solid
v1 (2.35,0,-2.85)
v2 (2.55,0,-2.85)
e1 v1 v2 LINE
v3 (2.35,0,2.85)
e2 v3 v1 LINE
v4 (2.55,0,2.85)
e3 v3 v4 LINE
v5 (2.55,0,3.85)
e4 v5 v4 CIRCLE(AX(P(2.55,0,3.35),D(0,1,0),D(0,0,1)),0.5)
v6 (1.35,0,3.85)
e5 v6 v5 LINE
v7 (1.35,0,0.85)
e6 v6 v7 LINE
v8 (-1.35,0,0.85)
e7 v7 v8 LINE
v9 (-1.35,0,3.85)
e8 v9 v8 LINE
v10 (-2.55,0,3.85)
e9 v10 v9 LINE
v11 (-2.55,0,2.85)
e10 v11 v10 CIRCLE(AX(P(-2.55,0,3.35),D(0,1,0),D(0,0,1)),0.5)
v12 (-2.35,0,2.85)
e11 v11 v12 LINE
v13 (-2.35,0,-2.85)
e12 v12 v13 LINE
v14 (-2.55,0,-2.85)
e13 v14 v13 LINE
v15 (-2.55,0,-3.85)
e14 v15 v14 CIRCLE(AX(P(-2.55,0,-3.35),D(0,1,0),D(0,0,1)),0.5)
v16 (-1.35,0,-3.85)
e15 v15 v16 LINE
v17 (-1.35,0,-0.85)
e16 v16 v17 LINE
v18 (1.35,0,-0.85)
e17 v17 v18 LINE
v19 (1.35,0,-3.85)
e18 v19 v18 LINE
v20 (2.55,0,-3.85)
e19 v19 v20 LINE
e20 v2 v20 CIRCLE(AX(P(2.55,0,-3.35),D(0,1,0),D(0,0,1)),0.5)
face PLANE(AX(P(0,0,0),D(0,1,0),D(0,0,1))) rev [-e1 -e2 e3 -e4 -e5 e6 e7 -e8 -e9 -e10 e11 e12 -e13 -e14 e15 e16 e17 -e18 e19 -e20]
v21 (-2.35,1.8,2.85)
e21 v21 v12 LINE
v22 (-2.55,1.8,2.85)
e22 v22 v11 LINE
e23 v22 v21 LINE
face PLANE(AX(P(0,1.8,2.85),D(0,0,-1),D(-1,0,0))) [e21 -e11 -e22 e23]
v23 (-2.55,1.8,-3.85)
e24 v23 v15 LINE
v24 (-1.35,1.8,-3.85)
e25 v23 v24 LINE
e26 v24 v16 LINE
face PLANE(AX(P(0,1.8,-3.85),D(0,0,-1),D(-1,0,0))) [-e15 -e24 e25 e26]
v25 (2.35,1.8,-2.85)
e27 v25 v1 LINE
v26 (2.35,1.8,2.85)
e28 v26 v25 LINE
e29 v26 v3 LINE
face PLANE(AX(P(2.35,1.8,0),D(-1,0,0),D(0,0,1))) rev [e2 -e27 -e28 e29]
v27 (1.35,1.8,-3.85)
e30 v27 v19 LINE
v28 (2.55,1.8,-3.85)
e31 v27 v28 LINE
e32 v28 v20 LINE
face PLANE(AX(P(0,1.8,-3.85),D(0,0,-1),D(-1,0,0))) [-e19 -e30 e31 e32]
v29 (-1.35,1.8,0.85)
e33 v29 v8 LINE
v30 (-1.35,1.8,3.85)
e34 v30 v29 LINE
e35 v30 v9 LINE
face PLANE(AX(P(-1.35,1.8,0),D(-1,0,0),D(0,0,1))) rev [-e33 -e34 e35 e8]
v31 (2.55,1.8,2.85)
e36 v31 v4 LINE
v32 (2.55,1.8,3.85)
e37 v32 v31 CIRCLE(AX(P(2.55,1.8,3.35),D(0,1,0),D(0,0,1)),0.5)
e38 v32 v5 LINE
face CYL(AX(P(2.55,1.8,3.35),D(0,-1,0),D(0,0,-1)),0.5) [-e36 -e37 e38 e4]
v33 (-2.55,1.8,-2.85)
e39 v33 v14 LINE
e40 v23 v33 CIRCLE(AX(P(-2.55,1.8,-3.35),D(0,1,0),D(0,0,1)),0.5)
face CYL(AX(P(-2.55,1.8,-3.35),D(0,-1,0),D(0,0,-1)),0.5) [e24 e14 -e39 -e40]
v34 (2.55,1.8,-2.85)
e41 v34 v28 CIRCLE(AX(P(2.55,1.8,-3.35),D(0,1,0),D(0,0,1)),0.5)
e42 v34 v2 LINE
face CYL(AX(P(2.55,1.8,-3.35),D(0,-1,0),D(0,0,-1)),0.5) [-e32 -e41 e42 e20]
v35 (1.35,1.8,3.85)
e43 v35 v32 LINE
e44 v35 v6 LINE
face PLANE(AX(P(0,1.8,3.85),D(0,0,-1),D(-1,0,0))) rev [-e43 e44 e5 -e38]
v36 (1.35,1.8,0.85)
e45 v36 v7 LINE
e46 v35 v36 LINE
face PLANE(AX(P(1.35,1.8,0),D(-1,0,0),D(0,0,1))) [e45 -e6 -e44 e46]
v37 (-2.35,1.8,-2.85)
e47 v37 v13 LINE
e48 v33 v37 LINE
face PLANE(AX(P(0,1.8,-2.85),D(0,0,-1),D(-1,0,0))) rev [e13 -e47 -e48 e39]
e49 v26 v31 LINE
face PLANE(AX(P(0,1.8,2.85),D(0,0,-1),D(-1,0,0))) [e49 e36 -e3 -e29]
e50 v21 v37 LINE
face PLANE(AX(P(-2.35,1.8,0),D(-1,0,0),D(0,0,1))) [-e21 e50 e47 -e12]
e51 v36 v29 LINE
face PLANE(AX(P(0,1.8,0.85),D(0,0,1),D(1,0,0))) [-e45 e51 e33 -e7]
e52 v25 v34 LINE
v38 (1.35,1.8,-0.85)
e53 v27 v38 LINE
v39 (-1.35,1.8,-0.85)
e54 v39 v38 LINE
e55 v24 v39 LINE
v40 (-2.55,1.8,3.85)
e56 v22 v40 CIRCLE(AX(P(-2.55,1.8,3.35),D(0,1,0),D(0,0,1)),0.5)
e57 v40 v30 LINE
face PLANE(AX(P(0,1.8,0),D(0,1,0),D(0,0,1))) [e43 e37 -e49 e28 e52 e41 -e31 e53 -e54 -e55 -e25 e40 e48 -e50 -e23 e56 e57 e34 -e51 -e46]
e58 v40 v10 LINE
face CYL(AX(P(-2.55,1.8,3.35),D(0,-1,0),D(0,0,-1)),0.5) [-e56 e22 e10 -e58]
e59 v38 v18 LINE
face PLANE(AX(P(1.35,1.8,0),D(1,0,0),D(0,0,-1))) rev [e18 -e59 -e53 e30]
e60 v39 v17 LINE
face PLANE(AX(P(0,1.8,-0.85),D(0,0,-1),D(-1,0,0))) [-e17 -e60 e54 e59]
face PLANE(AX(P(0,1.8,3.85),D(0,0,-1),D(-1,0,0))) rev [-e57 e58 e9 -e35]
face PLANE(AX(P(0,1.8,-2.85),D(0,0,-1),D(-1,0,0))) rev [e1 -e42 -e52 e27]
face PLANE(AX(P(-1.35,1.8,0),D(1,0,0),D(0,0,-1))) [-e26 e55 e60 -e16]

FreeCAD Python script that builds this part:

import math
import FreeCAD as App
import Part
import Sketcher

V = App.Vector
Q = App.Units.Quantity

doc = App.newDocument("Part")
body = doc.addObject("PartDesign::Body", "Body")

# Sketch on XZ plane
sketch1 = body.newObject("Sketcher::SketchObject", "Sketch")
sketch1.AttachmentSupport = (doc.getObject("XZ_Plane"), [""])
sketch1.MapMode = "FlatFace"
sketch1.addGeometry([
    Part.LineSegment(V(-2.35, 2.85, 0), V(-2.55, 2.85, 0)),  # 0
    Part.ArcOfCircle(Part.Circle(V(-2.55, 3.35, 0), V(0, 0, 1), 0.5), math.radians(90), math.radians(270)),  # 1
    Part.LineSegment(V(-2.55, 3.85, 0), V(-1.35, 3.85, 0)),  # 2
    Part.LineSegment(V(-1.35, 3.85, 0), V(-1.35, 0.85, 0)),  # 3
    Part.LineSegment(V(-1.35, 0.85, 0), V(1.35, 0.85, 0)),  # 4
    Part.LineSegment(V(1.35, 0.85, 0), V(1.35, 3.85, 0)),  # 5
    Part.LineSegment(V(1.35, 3.85, 0), V(2.55, 3.85, 0)),  # 6
    Part.ArcOfCircle(Part.Circle(V(2.55, 3.35, 0), V(0, 0, 1), 0.5), math.radians(-90), math.radians(90)),  # 7
    Part.LineSegment(V(2.55, 2.85, 0), V(2.35, 2.85, 0)),  # 8
    Part.LineSegment(V(2.35, 2.85, 0), V(2.35, -2.85, 0)),  # 9
    Part.LineSegment(V(2.35, -2.85, 0), V(2.55, -2.85, 0)),  # 10
    Part.ArcOfCircle(Part.Circle(V(2.55, -3.35, 0), V(0, 0, 1), 0.5), math.radians(-90), math.radians(90)),  # 11
    Part.LineSegment(V(2.55, -3.85, 0), V(1.35, -3.85, 0)),  # 12
    Part.LineSegment(V(1.35, -3.85, 0), V(1.35, -0.85, 0)),  # 13
    Part.LineSegment(V(1.35, -0.85, 0), V(-1.35, -0.85, 0)),  # 14
    Part.LineSegment(V(-1.35, -0.85, 0), V(-1.35, -3.85, 0)),  # 15
    Part.LineSegment(V(-1.35, -3.85, 0), V(-2.55, -3.85, 0)),  # 16
    Part.ArcOfCircle(Part.Circle(V(-2.55, -3.35, 0), V(0, 0, 1), 0.5), math.radians(90), math.radians(270)),  # 17
    Part.LineSegment(V(-2.55, -2.85, 0), V(-2.35, -2.85, 0)),  # 18
    Part.LineSegment(V(-2.35, -2.85, 0), V(-2.35, 2.85, 0)),  # 19
], False)
sketch1.addConstraint([
    Sketcher.Constraint("Tangent", 0, 2, 1, 2),
    Sketcher.Constraint("Tangent", 1, 1, 2, 1),
    Sketcher.Constraint("Coincident", 2, 2, 3, 1),
    Sketcher.Constraint("Coincident", 3, 2, 4, 1),
    Sketcher.Constraint("Coincident", 4, 2, 5, 1),
    Sketcher.Constraint("Coincident", 5, 2, 6, 1),
    Sketcher.Constraint("Tangent", 6, 2, 7, 2),
    Sketcher.Constraint("Tangent", 7, 1, 8, 1),
    Sketcher.Constraint("Coincident", 8, 2, 9, 1),
    Sketcher.Constraint("Coincident", 9, 2, 10, 1),
    Sketcher.Constraint("Tangent", 10, 2, 11, 2),
    Sketcher.Constraint("Tangent", 11, 1, 12, 1),
    Sketcher.Constraint("Coincident", 12, 2, 13, 1),
    Sketcher.Constraint("Coincident", 13, 2, 14, 1),
    Sketcher.Constraint("Coincident", 14, 2, 15, 1),
    Sketcher.Constraint("Coincident", 15, 2, 16, 1),
    Sketcher.Constraint("Tangent", 16, 2, 17, 2),
    Sketcher.Constraint("Tangent", 17, 1, 18, 1),
    Sketcher.Constraint("Coincident", 18, 2, 19, 1),
    Sketcher.Constraint("Coincident", 19, 2, 0, 1),
    Sketcher.Constraint("Horizontal", 0),
    Sketcher.Constraint("Horizontal", 2),
    Sketcher.Constraint("Vertical", 3),
    Sketcher.Constraint("Horizontal", 4),
    Sketcher.Constraint("Vertical", 5),
    Sketcher.Constraint("Horizontal", 6),
    Sketcher.Constraint("Horizontal", 8),
    Sketcher.Constraint("Vertical", 9),
    Sketcher.Constraint("Horizontal", 10),
    Sketcher.Constraint("Horizontal", 12),
    Sketcher.Constraint("Vertical", 13),
    Sketcher.Constraint("Horizontal", 14),
    Sketcher.Constraint("Vertical", 15),
    Sketcher.Constraint("Horizontal", 16),
    Sketcher.Constraint("Horizontal", 18),
    Sketcher.Constraint("Vertical", 19),
    Sketcher.Constraint("Equal", 1, 7),
    Sketcher.Constraint("Equal", 7, 11),
    Sketcher.Constraint("Equal", 11, 17),
    Sketcher.Constraint("Symmetric", 1, 3, 11, 3, -1, 1),
    Sketcher.Constraint("Symmetric", 7, 3, 17, 3, -1, 1),
    Sketcher.Constraint("Symmetric", 3, 2, 13, 2, -1, 1),
    Sketcher.Constraint("Symmetric", 1, 3, 7, 3, -2),
    Sketcher.Constraint("Vertical", 5, 2, 12, 2),
    Sketcher.Constraint("Vertical", 3, 2, 14, 2),
    Sketcher.Constraint("Equal", 0, 8),
    Sketcher.Constraint("Radius", 1, Q("0.5 mm")),
    Sketcher.Constraint("DistanceY", 3, 2, 3, 1, Q("3 mm")),
    Sketcher.Constraint("DistanceX", 0, 2, 0, 1, Q("0.2 mm")),
    Sketcher.Constraint("DistanceX", 2, 1, 2, 2, Q("1.2 mm")),
    Sketcher.Constraint("DistanceX", 4, 1, 4, 2, Q("2.7 mm")),
    Sketcher.Constraint("DistanceY", 9, 2, 9, 1, Q("5.7 mm")),
])
pad1 = body.newObject("PartDesign::Pad", "Pad")
pad1.Profile = sketch1
pad1.Length = 1.8
pad1.Reversed = True

doc.recompute()
